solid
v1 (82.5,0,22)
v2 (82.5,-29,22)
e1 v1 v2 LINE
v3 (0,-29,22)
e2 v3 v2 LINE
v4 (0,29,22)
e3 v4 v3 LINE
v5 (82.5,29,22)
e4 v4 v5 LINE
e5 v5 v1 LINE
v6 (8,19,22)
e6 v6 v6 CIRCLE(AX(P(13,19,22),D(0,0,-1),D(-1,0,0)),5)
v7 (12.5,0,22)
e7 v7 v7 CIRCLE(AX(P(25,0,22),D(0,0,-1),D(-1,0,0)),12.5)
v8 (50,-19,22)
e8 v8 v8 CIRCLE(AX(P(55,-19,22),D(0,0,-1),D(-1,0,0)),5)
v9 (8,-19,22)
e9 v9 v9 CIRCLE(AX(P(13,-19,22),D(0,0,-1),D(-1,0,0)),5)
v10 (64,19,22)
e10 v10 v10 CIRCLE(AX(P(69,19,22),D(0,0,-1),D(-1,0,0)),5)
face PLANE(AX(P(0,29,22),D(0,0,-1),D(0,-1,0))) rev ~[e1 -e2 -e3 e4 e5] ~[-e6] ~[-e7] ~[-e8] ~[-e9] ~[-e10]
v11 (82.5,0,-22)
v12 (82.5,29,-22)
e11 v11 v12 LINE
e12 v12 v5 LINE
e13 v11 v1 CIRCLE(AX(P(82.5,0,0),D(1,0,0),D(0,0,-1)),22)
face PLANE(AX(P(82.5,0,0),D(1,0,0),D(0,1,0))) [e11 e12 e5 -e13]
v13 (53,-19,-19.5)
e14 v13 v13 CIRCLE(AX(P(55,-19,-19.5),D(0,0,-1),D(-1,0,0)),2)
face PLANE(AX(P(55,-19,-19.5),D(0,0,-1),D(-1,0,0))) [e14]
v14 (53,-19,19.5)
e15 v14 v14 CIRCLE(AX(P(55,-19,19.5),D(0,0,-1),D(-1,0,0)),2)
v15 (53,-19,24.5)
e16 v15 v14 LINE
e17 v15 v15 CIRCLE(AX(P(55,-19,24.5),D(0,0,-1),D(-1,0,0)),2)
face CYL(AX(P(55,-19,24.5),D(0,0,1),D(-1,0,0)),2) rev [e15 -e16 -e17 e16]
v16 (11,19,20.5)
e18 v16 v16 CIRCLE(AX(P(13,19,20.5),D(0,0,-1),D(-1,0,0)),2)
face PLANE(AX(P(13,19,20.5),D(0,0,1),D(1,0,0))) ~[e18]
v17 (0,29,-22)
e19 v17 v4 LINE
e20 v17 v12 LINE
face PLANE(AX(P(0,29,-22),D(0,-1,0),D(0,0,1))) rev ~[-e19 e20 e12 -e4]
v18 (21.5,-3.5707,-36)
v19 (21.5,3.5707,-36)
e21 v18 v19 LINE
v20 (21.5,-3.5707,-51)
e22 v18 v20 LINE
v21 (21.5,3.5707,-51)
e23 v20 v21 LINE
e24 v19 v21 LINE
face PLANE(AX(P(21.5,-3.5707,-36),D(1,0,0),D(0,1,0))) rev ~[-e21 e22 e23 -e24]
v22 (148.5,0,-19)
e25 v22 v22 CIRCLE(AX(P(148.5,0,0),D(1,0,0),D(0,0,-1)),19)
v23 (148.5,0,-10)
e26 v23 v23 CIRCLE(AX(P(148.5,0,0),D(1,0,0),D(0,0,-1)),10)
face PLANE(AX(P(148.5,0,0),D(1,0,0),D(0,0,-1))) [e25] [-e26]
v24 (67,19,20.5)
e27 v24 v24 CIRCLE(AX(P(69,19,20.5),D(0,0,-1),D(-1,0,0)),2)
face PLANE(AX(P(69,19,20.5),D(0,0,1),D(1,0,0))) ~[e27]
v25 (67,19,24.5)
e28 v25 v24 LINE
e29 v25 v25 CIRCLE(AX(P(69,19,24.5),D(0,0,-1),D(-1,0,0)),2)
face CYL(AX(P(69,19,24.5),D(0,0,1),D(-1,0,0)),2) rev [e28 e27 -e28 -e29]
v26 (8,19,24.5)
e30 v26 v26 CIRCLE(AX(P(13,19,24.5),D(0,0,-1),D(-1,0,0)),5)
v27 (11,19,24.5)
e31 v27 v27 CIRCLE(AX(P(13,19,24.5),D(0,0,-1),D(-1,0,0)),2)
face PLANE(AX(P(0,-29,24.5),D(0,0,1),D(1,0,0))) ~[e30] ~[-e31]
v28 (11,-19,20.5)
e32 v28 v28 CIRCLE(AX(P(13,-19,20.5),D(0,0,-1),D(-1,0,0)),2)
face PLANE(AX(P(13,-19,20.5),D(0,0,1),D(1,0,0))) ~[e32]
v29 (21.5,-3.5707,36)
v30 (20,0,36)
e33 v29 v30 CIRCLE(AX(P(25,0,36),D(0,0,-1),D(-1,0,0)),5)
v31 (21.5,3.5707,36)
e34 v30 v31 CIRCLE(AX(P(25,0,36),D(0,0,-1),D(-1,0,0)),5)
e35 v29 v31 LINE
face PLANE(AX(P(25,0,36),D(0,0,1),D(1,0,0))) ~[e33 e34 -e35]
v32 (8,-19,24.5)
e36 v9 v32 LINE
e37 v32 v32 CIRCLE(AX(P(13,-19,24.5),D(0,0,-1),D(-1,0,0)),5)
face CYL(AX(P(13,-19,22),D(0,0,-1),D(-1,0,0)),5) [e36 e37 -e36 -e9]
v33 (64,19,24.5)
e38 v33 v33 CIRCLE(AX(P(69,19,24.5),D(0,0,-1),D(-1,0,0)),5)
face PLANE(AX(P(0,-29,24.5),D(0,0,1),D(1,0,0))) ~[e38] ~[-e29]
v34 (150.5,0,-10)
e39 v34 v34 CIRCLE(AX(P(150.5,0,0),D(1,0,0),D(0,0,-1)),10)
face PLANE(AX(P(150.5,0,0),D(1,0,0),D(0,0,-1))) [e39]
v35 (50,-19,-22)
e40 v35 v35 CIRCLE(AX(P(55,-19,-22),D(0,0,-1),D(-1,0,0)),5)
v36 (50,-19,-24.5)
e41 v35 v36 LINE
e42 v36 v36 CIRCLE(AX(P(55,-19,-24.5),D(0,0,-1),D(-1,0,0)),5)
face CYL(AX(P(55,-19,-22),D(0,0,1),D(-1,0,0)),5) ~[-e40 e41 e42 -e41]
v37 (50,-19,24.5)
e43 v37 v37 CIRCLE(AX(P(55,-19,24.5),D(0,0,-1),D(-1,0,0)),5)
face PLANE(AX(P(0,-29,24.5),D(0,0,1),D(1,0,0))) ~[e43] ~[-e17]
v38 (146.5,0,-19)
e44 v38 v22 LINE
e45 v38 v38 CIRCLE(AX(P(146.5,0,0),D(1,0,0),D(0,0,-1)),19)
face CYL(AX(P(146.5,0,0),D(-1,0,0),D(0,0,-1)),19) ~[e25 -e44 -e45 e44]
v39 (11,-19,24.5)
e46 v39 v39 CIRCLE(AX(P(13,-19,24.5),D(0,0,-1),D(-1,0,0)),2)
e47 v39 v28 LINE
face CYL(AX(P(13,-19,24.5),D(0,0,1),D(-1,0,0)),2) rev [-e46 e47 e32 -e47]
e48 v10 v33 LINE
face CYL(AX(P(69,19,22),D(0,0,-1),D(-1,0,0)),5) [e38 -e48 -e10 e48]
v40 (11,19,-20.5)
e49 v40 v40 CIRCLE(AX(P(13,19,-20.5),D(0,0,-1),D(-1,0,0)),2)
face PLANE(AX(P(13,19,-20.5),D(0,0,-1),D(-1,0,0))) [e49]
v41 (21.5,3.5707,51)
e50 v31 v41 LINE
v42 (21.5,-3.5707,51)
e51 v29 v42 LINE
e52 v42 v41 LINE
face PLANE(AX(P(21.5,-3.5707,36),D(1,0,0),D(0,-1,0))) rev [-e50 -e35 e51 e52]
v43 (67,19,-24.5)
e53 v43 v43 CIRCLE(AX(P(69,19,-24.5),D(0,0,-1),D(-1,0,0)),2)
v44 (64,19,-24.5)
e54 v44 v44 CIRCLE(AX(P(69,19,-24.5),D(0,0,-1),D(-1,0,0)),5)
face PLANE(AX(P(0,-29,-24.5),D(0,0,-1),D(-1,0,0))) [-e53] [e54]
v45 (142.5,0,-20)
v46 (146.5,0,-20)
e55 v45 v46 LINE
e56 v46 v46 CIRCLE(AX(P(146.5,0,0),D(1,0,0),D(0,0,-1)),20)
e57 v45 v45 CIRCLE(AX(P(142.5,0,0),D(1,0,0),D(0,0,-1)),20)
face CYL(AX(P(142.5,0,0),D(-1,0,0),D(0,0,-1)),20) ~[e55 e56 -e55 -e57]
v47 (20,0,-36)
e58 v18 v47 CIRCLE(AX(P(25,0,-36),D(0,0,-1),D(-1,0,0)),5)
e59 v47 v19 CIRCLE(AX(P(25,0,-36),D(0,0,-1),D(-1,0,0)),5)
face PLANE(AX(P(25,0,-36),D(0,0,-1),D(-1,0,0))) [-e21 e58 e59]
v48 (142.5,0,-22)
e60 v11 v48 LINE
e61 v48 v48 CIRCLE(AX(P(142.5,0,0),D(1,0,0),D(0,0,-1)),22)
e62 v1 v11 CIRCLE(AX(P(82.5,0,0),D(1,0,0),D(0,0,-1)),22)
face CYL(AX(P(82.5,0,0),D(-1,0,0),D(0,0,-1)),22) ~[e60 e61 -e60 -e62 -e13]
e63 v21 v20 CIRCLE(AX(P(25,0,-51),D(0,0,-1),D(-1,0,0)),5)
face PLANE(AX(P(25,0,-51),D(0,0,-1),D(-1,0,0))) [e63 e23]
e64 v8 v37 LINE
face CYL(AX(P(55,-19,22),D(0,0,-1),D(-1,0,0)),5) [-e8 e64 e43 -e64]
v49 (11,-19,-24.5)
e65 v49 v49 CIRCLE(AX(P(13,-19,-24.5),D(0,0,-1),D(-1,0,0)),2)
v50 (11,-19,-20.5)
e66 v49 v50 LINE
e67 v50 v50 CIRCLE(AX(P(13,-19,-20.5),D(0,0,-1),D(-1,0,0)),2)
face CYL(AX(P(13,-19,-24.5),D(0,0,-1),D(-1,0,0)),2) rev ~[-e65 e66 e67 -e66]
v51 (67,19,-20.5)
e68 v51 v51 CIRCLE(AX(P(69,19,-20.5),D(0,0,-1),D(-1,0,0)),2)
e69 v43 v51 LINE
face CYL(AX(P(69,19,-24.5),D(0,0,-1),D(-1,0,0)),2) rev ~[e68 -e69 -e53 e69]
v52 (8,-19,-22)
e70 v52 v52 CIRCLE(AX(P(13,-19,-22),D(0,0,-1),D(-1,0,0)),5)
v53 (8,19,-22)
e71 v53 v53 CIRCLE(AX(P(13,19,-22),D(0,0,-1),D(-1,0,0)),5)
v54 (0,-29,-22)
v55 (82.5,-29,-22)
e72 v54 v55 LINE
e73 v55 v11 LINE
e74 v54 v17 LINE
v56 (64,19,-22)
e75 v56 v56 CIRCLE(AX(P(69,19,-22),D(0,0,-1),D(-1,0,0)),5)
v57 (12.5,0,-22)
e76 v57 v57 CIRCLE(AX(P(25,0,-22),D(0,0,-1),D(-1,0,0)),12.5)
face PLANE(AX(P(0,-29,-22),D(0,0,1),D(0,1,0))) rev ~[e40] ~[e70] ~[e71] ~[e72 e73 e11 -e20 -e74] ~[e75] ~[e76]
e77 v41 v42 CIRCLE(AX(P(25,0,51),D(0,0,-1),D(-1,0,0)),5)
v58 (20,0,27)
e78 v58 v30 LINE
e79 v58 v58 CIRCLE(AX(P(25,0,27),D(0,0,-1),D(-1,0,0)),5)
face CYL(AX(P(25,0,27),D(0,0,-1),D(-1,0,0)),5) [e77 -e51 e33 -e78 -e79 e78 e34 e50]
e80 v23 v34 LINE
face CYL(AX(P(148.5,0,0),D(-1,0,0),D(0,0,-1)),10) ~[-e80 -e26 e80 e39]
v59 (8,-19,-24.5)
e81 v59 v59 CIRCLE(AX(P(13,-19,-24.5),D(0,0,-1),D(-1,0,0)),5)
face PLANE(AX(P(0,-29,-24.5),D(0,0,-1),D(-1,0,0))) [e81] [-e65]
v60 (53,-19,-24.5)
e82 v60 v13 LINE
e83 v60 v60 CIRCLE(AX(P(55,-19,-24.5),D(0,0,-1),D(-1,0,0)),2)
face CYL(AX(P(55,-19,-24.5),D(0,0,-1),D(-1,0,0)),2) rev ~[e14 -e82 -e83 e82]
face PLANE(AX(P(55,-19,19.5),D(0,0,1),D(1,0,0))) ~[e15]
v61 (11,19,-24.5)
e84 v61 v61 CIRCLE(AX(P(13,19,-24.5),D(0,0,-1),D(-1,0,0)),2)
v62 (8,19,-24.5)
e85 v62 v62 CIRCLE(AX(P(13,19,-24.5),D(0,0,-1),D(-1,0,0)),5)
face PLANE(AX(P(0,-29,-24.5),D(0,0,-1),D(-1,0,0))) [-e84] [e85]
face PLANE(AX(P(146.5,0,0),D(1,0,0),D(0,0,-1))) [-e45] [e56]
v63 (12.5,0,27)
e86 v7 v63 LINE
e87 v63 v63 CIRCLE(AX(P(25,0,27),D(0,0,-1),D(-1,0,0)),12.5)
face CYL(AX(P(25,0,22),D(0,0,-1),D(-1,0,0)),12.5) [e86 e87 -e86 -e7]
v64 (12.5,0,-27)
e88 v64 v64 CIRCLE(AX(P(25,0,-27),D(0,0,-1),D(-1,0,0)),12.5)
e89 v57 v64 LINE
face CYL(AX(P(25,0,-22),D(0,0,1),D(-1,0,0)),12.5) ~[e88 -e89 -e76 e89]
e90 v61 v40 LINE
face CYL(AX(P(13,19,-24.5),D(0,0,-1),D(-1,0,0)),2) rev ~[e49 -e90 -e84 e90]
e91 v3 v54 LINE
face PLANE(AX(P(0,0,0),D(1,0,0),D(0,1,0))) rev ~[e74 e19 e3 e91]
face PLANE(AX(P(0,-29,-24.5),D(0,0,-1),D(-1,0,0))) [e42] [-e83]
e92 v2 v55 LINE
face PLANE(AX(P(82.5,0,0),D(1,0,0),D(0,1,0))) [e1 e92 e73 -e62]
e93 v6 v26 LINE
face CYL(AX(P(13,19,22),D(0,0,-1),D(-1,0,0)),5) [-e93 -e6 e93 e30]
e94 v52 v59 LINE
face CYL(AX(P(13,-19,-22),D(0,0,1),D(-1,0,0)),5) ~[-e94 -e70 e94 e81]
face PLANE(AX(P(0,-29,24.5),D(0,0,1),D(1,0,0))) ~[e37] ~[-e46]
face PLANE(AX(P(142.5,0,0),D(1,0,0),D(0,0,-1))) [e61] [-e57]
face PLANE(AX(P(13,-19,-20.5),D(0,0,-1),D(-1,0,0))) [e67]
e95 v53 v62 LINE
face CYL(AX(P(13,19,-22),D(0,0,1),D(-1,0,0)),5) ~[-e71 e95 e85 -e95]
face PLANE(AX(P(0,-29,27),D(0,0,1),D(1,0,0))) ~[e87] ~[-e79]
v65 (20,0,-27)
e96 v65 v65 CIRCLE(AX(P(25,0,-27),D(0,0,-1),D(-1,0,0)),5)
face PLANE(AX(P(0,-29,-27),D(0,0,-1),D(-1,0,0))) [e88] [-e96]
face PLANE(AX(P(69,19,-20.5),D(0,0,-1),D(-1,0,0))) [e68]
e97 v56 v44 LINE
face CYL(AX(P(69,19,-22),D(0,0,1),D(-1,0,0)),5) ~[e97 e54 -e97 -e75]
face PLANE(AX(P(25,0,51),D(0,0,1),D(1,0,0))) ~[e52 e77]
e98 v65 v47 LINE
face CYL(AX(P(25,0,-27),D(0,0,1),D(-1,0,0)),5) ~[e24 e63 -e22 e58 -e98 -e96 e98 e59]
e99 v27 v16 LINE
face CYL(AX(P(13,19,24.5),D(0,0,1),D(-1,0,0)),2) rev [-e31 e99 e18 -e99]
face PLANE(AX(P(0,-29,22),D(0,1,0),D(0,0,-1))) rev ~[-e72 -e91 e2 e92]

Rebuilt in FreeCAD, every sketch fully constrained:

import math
import FreeCAD as App
import Part
import Sketcher
from FreeCAD import Vector
Q = App.Units.Quantity

doc = App.newDocument("Part")
body = doc.addObject("PartDesign::Body", "Body")

# Sketch on YZ plane
sketch1 = doc.addObject("Sketcher::SketchObject", "Sketch")
body.addObject(sketch1)
sketch1.AttachmentSupport = (doc.YZ_Plane, [""])
sketch1.MapMode = "FlatFace"
sketch1.addGeometry([
    Part.LineSegment(Vector(29, -22, 0), Vector(29, 22, 0)),
    Part.LineSegment(Vector(29, 22, 0), Vector(-29, 22, 0)),
    Part.LineSegment(Vector(-29, 22, 0), Vector(-29, -22, 0)),
    Part.LineSegment(Vector(-29, -22, 0), Vector(29, -22, 0)),
], False)
sketch1.addConstraint([
    Sketcher.Constraint("Coincident", 0, 2, 1, 1),
    Sketcher.Constraint("Coincident", 1, 2, 2, 1),
    Sketcher.Constraint("Coincident", 2, 2, 3, 1),
    Sketcher.Constraint("Coincident", 3, 2, 0, 1),
    Sketcher.Constraint("Vertical", 0),
    Sketcher.Constraint("Horizontal", 1),
    Sketcher.Constraint("Vertical", 2),
    Sketcher.Constraint("Horizontal", 3),
    Sketcher.Constraint("Symmetric", 0, 2, 2, 2, -1, 1),
    Sketcher.Constraint("DistanceX", 1, 2, 1, 1, Q("58 mm")),
    Sketcher.Constraint("DistanceY", 0, 1, 0, 2, Q("44 mm")),
])
pad1 = doc.addObject("PartDesign::Pad", "Pad")
body.addObject(pad1)
pad1.Profile = sketch1
pad1.Length = 82.5

# Sketch on YZ plane
sketch2 = doc.addObject("Sketcher::SketchObject", "Sketch001")
body.addObject(sketch2)
sketch2.AttachmentSupport = (doc.YZ_Plane, [""])
sketch2.MapMode = "FlatFace"
sketch2.AttachmentOffset = App.Placement(Vector(0, 0, 82.5), App.Rotation())
sketch2.addGeometry(Part.Circle(Vector(0, 0, 0), Vector(0, 0, 1), 22), False)
sketch2.addConstraint([
    Sketcher.Constraint("Coincident", 0, 3, -1, 1),
    Sketcher.Constraint("Diameter", 0, Q("44 mm")),
])
pad2 = doc.addObject("PartDesign::Pad", "Pad001")
body.addObject(pad2)
pad2.Profile = sketch2
pad2.Length = 60

# Sketch on YZ plane
sketch3 = doc.addObject("Sketcher::SketchObject", "Sketch002")
body.addObject(sketch3)
sketch3.AttachmentSupport = (doc.YZ_Plane, [""])
sketch3.MapMode = "FlatFace"
sketch3.AttachmentOffset = App.Placement(Vector(0, 0, 142.5), App.Rotation())
sketch3.addGeometry(Part.Circle(Vector(0, 0, 0), Vector(0, 0, 1), 20), False)
sketch3.addConstraint([
    Sketcher.Constraint("Coincident", 0, 3, -1, 1),
    Sketcher.Constraint("Diameter", 0, Q("40 mm")),
])
pad3 = doc.addObject("PartDesign::Pad", "Pad002")
body.addObject(pad3)
pad3.Profile = sketch3
pad3.Length = 4

# Sketch on YZ plane
sketch4 = doc.addObject("Sketcher::SketchObject", "Sketch003")
body.addObject(sketch4)
sketch4.AttachmentSupport = (doc.YZ_Plane, [""])
sketch4.MapMode = "FlatFace"
sketch4.AttachmentOffset = App.Placement(Vector(0, 0, 146.5), App.Rotation())
sketch4.addGeometry(Part.Circle(Vector(0, 0, 0), Vector(0, 0, 1), 19), False)
sketch4.addConstraint([
    Sketcher.Constraint("Coincident", 0, 3, -1, 1),
    Sketcher.Constraint("Diameter", 0, Q("38 mm")),
])
pad4 = doc.addObject("PartDesign::Pad", "Pad003")
body.addObject(pad4)
pad4.Profile = sketch4
pad4.Length = 2

# Sketch on YZ plane
sketch5 = doc.addObject("Sketcher::SketchObject", "Sketch004")
body.addObject(sketch5)
sketch5.AttachmentSupport = (doc.YZ_Plane, [""])
sketch5.MapMode = "FlatFace"
sketch5.AttachmentOffset = App.Placement(Vector(0, 0, 148.5), App.Rotation())
sketch5.addGeometry(Part.Circle(Vector(0, 0, 0), Vector(0, 0, 1), 10), False)
sketch5.addConstraint([
    Sketcher.Constraint("Coincident", 0, 3, -1, 1),
    Sketcher.Constraint("Diameter", 0, Q("20 mm")),
])
pad5 = doc.addObject("PartDesign::Pad", "Pad004")
body.addObject(pad5)
pad5.Profile = sketch5
pad5.Length = 2

# Sketch on XY plane
sketch6 = doc.addObject("Sketcher::SketchObject", "Sketch005")
body.addObject(sketch6)
sketch6.AttachmentSupport = (doc.XY_Plane, [""])
sketch6.MapMode = "FlatFace"
sketch6.AttachmentOffset = App.Placement(Vector(0, 0, -22), App.Rotation())
sketch6.addGeometry(Part.Circle(Vector(25, 0, 0), Vector(0, 0, 1), 12.5), False)
sketch6.addConstraint([
    Sketcher.Constraint("PointOnObject", 0, 3, -1),
    Sketcher.Constraint("Diameter", 0, Q("25 mm")),
    Sketcher.Constraint("DistanceX", -1, 1, 0, 3, Q("25 mm")),
])
pad6 = doc.addObject("PartDesign::Pad", "Pad005")
body.addObject(pad6)
pad6.Profile = sketch6
pad6.Length = 5
pad6.Reversed = True

# Sketch on XY plane
sketch7 = doc.addObject("Sketcher::SketchObject", "Sketch006")
body.addObject(sketch7)
sketch7.AttachmentSupport = (doc.XY_Plane, [""])
sketch7.MapMode = "FlatFace"
sketch7.AttachmentOffset = App.Placement(Vector(0, 0, -22), App.Rotation())
sketch7.addGeometry([
    Part.Circle(Vector(13, -19, 0), Vector(0, 0, 1), 5),
    Part.Circle(Vector(13, 19, 0), Vector(0, 0, 1), 5),
], False)
sketch7.addConstraint([
    Sketcher.Constraint("Equal", 0, 1),
    Sketcher.Constraint("Symmetric", 0, 3, 1, 3, -1),
    Sketcher.Constraint("Diameter", 0, Q("10 mm")),
    Sketcher.Constraint("DistanceX", -1, 1, 0, 3, Q("13 mm")),
    Sketcher.Constraint("DistanceY", 0, 3, -1, 1, Q("19 mm")),
])
pad7 = doc.addObject("PartDesign::Pad", "Pad006")
body.addObject(pad7)
pad7.Profile = sketch7
pad7.Length = 2.5
pad7.Reversed = True

# Sketch on XY plane
sketch8 = doc.addObject("Sketcher::SketchObject", "Sketch007")
body.addObject(sketch8)
sketch8.AttachmentSupport = (doc.XY_Plane, [""])
sketch8.MapMode = "FlatFace"
sketch8.AttachmentOffset = App.Placement(Vector(0, 0, -22), App.Rotation())
sketch8.addGeometry(Part.Circle(Vector(55, -19, 0), Vector(0, 0, 1), 5), False)
sketch8.addConstraint([
    Sketcher.Constraint("Diameter", 0, Q("10 mm")),
    Sketcher.Constraint("DistanceX", -1, 1, 0, 3, Q("55 mm")),
    Sketcher.Constraint("DistanceY", 0, 3, -1, 1, Q("19 mm")),
])
pad8 = doc.addObject("PartDesign::Pad", "Pad007")
body.addObject(pad8)
pad8.Profile = sketch8
pad8.Length = 2.5
pad8.Reversed = True

# Sketch on XY plane
sketch9 = doc.addObject("Sketcher::SketchObject", "Sketch008")
body.addObject(sketch9)
sketch9.AttachmentSupport = (doc.XY_Plane, [""])
sketch9.MapMode = "FlatFace"
sketch9.AttachmentOffset = App.Placement(Vector(0, 0, -22), App.Rotation())
sketch9.addGeometry(Part.Circle(Vector(69, 19, 0), Vector(0, 0, 1), 5), False)
sketch9.addConstraint([
    Sketcher.Constraint("Diameter", 0, Q("10 mm")),
    Sketcher.Constraint("DistanceX", -1, 1, 0, 3, Q("69 mm")),
    Sketcher.Constraint("DistanceY", -1, 1, 0, 3, Q("19 mm")),
])
pad9 = doc.addObject("PartDesign::Pad", "Pad008")
body.addObject(pad9)
pad9.Profile = sketch9
pad9.Length = 2.5
pad9.Reversed = True

# Sketch on XY plane
sketch10 = doc.addObject("Sketcher::SketchObject", "Sketch009")
body.addObject(sketch10)
sketch10.AttachmentSupport = (doc.XY_Plane, [""])
sketch10.MapMode = "FlatFace"
sketch10.AttachmentOffset = App.Placement(Vector(0, 0, -24.5), App.Rotation())
sketch10.addGeometry(Part.Circle(Vector(55, -19, 0), Vector(0, 0, 1), 2), False)
sketch10.addConstraint([
    Sketcher.Constraint("Diameter", 0, Q("4 mm")),
    Sketcher.Constraint("DistanceX", -1, 1, 0, 3, Q("55 mm")),
    Sketcher.Constraint("DistanceY", 0, 3, -1, 1, Q("19 mm")),
])
pocket1 = doc.addObject("PartDesign::Pocket", "Pocket")
body.addObject(pocket1)
pocket1.Profile = sketch10
pocket1.Length = 5
pocket1.Reversed = True

# Sketch on XY plane
sketch11 = doc.addObject("Sketcher::SketchObject", "Sketch010")
body.addObject(sketch11)
sketch11.AttachmentSupport = (doc.XY_Plane, [""])
sketch11.MapMode = "FlatFace"
sketch11.AttachmentOffset = App.Placement(Vector(0, 0, -24.5), App.Rotation())
sketch11.addGeometry(Part.Circle(Vector(69, 19, 0), Vector(0, 0, 1), 2), False)
sketch11.addConstraint([
    Sketcher.Constraint("Diameter", 0, Q("4 mm")),
    Sketcher.Constraint("DistanceX", -1, 1, 0, 3, Q("69 mm")),
    Sketcher.Constraint("DistanceY", -1, 1, 0, 3, Q("19 mm")),
])
pocket2 = doc.addObject("PartDesign::Pocket", "Pocket001")
body.addObject(pocket2)
pocket2.Profile = sketch11
pocket2.Length = 4
pocket2.Reversed = True

# Sketch on XY plane
sketch12 = doc.addObject("Sketcher::SketchObject", "Sketch011")
body.addObject(sketch12)
sketch12.AttachmentSupport = (doc.XY_Plane, [""])
sketch12.MapMode = "FlatFace"
sketch12.AttachmentOffset = App.Placement(Vector(0, 0, -24.5), App.Rotation())
sketch12.addGeometry(Part.Circle(Vector(13, -19, 0), Vector(0, 0, 1), 2), False)
sketch12.addConstraint([
    Sketcher.Constraint("Diameter", 0, Q("4 mm")),
    Sketcher.Constraint("DistanceX", -1, 1, 0, 3, Q("13 mm")),
    Sketcher.Constraint("DistanceY", 0, 3, -1, 1, Q("19 mm")),
])
pocket3 = doc.addObject("PartDesign::Pocket", "Pocket002")
body.addObject(pocket3)
pocket3.Profile = sketch12
pocket3.Length = 4
pocket3.Reversed = True

# Sketch on XY plane
sketch13 = doc.addObject("Sketcher::SketchObject", "Sketch012")
body.addObject(sketch13)
sketch13.AttachmentSupport = (doc.XY_Plane, [""])
sketch13.MapMode = "FlatFace"
sketch13.AttachmentOffset = App.Placement(Vector(0, 0, -24.5), App.Rotation())
sketch13.addGeometry(Part.Circle(Vector(13, 19, 0), Vector(0, 0, 1), 2), False)
sketch13.addConstraint([
    Sketcher.Constraint("Diameter", 0, Q("4 mm")),
    Sketcher.Constraint("DistanceX", -1, 1, 0, 3, Q("13 mm")),
    Sketcher.Constraint("DistanceY", -1, 1, 0, 3, Q("19 mm")),
])
pocket4 = doc.addObject("PartDesign::Pocket", "Pocket003")
body.addObject(pocket4)
pocket4.Profile = sketch13
pocket4.Length = 4
pocket4.Reversed = True

# Sketch on XY plane
sketch14 = doc.addObject("Sketcher::SketchObject", "Sketch013")
body.addObject(sketch14)
sketch14.AttachmentSupport = (doc.XY_Plane, [""])
sketch14.MapMode = "FlatFace"
sketch14.AttachmentOffset = App.Placement(Vector(0, 0, -27), App.Rotation())
sketch14.addGeometry(Part.Circle(Vector(25, 0, 0), Vector(0, 0, 1), 5), False)
sketch14.addConstraint([
    Sketcher.Constraint("PointOnObject", 0, 3, -1),
    Sketcher.Constraint("Diameter", 0, Q("10 mm")),
    Sketcher.Constraint("DistanceX", -1, 1, 0, 3, Q("25 mm")),
])
pad10 = doc.addObject("PartDesign::Pad", "Pad009")
body.addObject(pad10)
pad10.Profile = sketch14
pad10.Length = 9
pad10.Reversed = True

# Sketch on XY plane
sketch15 = doc.addObject("Sketcher::SketchObject", "Sketch014")
body.addObject(sketch15)
sketch15.AttachmentSupport = (doc.XY_Plane, [""])
sketch15.MapMode = "FlatFace"
sketch15.AttachmentOffset = App.Placement(Vector(0, 0, -36), App.Rotation())
sketch15.addGeometry([
    Part.LineSegment(Vector(21.5, -3.5707, 0), Vector(21.5, 3.5707, 0)),
    Part.ArcOfCircle(Part.Circle(Vector(25, 0, 0), Vector(0, 0, 1), 5), math.radians(-134.427118), math.radians(134.427118)),
], False)
sketch15.addConstraint([
    Sketcher.Constraint("Coincident", 0, 1, 1, 1),
    Sketcher.Constraint("Coincident", 1, 2, 0, 2),
    Sketcher.Constraint("Vertical", 0),
    Sketcher.Constraint("PointOnObject", 1, 3, -1),
    Sketcher.Constraint("Radius", 1, Q("5 mm")),
    Sketcher.Constraint("DistanceX", -1, 1, 1, 3, Q("25 mm")),
    Sketcher.Constraint("DistanceX", -1, 1, 0, 1, Q("21.5 mm")),
])
pad11 = doc.addObject("PartDesign::Pad", "Pad010")
body.addObject(pad11)
pad11.Profile = sketch15
pad11.Length = 15
pad11.Reversed = True
doc.recompute()

mirrored = doc.addObject("PartDesign::Mirrored", "Mirrored")
body.addObject(mirrored)
mirrored.Originals = [pad8, pocket1, pad9, pocket2, pad6, pad10, pad11, pad7, pocket3, pocket4]
mirrored.MirrorPlane = (doc.XY_Plane, [""])
body.Tip = mirrored

doc.recompute()
